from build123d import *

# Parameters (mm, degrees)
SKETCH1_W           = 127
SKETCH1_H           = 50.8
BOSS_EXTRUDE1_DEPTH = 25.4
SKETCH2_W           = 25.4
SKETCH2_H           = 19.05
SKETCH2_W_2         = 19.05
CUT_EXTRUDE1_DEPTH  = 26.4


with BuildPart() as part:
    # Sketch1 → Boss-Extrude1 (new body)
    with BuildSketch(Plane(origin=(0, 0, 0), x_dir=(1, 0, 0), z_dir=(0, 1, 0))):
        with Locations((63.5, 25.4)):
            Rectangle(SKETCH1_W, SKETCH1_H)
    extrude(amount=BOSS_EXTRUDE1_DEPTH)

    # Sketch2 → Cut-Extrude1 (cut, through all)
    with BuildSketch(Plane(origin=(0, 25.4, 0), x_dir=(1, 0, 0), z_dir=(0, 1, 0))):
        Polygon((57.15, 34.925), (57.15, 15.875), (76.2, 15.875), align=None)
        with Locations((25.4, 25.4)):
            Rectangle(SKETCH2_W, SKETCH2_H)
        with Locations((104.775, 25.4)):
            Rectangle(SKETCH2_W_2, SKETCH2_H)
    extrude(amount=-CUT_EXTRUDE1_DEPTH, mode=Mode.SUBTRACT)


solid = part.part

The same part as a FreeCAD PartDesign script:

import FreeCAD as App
import Part
import Sketcher

V = App.Vector
Q = App.Units.Quantity


def add_polygon(sketch, points):
    """Adds a closed chain of lines whose ends are joined by coincident constraints."""
    first, n = sketch.GeometryCount, len(points)
    for a, b in zip(points, points[1:] + points[:1]):
        sketch.addGeometry(Part.LineSegment(App.Vector(*a, 0), App.Vector(*b, 0)), False)
    for i in range(n):
        sketch.addConstraint(Sketcher.Constraint("Coincident", first + i, 2, first + (i + 1) % n, 1))

doc = App.newDocument("Part")
params = doc.addObject("Spreadsheet::Sheet", "Params")
for row, (alias, value) in enumerate([
    ("sketch1_width", "5 in"),
    ("sketch1_height", "2 in"),
    ("pad1_length", "1 in"),
    ("sketch2_width", "1 in"),
    ("sketch2_width2", "0.75 in"),
], start=1):
    params.set(f"A{row}", alias)
    params.set(f"B{row}", "=" + value)
    params.setAlias(f"B{row}", alias)

body = doc.addObject("PartDesign::Body", "Body")

sketch1 = body.newObject("Sketcher::SketchObject", "Sketch")
sketch1.AttachmentSupport = (doc.getObject("XZ_Plane"), [""])
sketch1.MapMode = "FlatFace"
add_polygon(sketch1, [(0, -50.8), (0, 0), (127, 0), (127, -50.8)])
sketch1.addConstraint([
    Sketcher.Constraint("Vertical", 0),
    Sketcher.Constraint("Horizontal", 1),
    Sketcher.Constraint("Vertical", 2),
    Sketcher.Constraint("Horizontal", 3),
    Sketcher.Constraint("Coincident", 0, 2, -1, 1),
    Sketcher.Constraint("DistanceX", 1, 1, 1, 2, Q("5 in")),
    Sketcher.Constraint("DistanceY", 0, 1, 0, 2, Q("2 in")),
])
sketch1.setExpression("Constraints[9]", "Params.sketch1_width")
sketch1.setExpression("Constraints[10]", "Params.sketch1_height")
pad1 = body.newObject("PartDesign::Pad", "Pad")
pad1.Profile = sketch1
pad1.setExpression("Length", "Params.pad1_length")
pad1.Reversed = True

sketch2 = body.newObject("Sketcher::SketchObject", "Sketch001")
sketch2.AttachmentSupport = (doc.getObject("XZ_Plane"), [""])
sketch2.MapMode = "FlatFace"
sketch2.AttachmentOffset = App.Placement(V(0, 0, -1 * 25.4), App.Rotation())
add_polygon(sketch2, [(57.15, -34.925), (57.15, -15.875), (76.2, -15.875)])
add_polygon(sketch2, [(12.7, -34.925), (12.7, -15.875), (38.1, -15.875), (38.1, -34.925)])
add_polygon(sketch2, [(95.25, -34.925), (95.25, -15.875), (114.3, -15.875), (114.3, -34.925)])
sketch2.addConstraint([
    Sketcher.Constraint("Vertical", 0),
    Sketcher.Constraint("Horizontal", 1),
    Sketcher.Constraint("Vertical", 3),
    Sketcher.Constraint("Horizontal", 4),
    Sketcher.Constraint("Vertical", 5),
    Sketcher.Constraint("Horizontal", 6),
    Sketcher.Constraint("Vertical", 7),
    Sketcher.Constraint("Horizontal", 8),
    Sketcher.Constraint("Vertical", 9),
    Sketcher.Constraint("Horizontal", 10),
    Sketcher.Constraint("Horizontal", 1, 2, 3, 2),
    Sketcher.Constraint("Horizontal", 2, 2, 5, 2),
    Sketcher.Constraint("Horizontal", 4, 2, 7, 2),
    Sketcher.Constraint("Horizontal", 6, 2, 9, 2),
    Sketcher.Constraint("Equal", 1, 8),
    Sketcher.Constraint("Equal", 10, 0),
    Sketcher.Constraint("DistanceX", 4, 1, 4, 2, Q("1 in")),
    Sketcher.Constraint("DistanceX", -1, 1, 1, 2, Q("3 in")),
    Sketcher.Constraint("DistanceX", 4, 2, 8, 2, Q("3 in")),
    Sketcher.Constraint("DistanceX", 1, 1, 1, 2, Q("0.75 in")),
    Sketcher.Constraint("DistanceX", -1, 1, 3, 2, Q("0.5 in")),
    Sketcher.Constraint("DistanceY", 0, 2, -1, 1, Q("0.625 in")),
])
sketch2.setExpression("Constraints[27]", "Params.sketch2_width")
sketch2.setExpression("Constraints[30]", "Params.sketch2_width2")
pocket1 = body.newObject("PartDesign::Pocket", "Pocket")
pocket1.Profile = sketch2
pocket1.Type = "ThroughAll"
pocket1.Reversed = True

doc.recompute()
